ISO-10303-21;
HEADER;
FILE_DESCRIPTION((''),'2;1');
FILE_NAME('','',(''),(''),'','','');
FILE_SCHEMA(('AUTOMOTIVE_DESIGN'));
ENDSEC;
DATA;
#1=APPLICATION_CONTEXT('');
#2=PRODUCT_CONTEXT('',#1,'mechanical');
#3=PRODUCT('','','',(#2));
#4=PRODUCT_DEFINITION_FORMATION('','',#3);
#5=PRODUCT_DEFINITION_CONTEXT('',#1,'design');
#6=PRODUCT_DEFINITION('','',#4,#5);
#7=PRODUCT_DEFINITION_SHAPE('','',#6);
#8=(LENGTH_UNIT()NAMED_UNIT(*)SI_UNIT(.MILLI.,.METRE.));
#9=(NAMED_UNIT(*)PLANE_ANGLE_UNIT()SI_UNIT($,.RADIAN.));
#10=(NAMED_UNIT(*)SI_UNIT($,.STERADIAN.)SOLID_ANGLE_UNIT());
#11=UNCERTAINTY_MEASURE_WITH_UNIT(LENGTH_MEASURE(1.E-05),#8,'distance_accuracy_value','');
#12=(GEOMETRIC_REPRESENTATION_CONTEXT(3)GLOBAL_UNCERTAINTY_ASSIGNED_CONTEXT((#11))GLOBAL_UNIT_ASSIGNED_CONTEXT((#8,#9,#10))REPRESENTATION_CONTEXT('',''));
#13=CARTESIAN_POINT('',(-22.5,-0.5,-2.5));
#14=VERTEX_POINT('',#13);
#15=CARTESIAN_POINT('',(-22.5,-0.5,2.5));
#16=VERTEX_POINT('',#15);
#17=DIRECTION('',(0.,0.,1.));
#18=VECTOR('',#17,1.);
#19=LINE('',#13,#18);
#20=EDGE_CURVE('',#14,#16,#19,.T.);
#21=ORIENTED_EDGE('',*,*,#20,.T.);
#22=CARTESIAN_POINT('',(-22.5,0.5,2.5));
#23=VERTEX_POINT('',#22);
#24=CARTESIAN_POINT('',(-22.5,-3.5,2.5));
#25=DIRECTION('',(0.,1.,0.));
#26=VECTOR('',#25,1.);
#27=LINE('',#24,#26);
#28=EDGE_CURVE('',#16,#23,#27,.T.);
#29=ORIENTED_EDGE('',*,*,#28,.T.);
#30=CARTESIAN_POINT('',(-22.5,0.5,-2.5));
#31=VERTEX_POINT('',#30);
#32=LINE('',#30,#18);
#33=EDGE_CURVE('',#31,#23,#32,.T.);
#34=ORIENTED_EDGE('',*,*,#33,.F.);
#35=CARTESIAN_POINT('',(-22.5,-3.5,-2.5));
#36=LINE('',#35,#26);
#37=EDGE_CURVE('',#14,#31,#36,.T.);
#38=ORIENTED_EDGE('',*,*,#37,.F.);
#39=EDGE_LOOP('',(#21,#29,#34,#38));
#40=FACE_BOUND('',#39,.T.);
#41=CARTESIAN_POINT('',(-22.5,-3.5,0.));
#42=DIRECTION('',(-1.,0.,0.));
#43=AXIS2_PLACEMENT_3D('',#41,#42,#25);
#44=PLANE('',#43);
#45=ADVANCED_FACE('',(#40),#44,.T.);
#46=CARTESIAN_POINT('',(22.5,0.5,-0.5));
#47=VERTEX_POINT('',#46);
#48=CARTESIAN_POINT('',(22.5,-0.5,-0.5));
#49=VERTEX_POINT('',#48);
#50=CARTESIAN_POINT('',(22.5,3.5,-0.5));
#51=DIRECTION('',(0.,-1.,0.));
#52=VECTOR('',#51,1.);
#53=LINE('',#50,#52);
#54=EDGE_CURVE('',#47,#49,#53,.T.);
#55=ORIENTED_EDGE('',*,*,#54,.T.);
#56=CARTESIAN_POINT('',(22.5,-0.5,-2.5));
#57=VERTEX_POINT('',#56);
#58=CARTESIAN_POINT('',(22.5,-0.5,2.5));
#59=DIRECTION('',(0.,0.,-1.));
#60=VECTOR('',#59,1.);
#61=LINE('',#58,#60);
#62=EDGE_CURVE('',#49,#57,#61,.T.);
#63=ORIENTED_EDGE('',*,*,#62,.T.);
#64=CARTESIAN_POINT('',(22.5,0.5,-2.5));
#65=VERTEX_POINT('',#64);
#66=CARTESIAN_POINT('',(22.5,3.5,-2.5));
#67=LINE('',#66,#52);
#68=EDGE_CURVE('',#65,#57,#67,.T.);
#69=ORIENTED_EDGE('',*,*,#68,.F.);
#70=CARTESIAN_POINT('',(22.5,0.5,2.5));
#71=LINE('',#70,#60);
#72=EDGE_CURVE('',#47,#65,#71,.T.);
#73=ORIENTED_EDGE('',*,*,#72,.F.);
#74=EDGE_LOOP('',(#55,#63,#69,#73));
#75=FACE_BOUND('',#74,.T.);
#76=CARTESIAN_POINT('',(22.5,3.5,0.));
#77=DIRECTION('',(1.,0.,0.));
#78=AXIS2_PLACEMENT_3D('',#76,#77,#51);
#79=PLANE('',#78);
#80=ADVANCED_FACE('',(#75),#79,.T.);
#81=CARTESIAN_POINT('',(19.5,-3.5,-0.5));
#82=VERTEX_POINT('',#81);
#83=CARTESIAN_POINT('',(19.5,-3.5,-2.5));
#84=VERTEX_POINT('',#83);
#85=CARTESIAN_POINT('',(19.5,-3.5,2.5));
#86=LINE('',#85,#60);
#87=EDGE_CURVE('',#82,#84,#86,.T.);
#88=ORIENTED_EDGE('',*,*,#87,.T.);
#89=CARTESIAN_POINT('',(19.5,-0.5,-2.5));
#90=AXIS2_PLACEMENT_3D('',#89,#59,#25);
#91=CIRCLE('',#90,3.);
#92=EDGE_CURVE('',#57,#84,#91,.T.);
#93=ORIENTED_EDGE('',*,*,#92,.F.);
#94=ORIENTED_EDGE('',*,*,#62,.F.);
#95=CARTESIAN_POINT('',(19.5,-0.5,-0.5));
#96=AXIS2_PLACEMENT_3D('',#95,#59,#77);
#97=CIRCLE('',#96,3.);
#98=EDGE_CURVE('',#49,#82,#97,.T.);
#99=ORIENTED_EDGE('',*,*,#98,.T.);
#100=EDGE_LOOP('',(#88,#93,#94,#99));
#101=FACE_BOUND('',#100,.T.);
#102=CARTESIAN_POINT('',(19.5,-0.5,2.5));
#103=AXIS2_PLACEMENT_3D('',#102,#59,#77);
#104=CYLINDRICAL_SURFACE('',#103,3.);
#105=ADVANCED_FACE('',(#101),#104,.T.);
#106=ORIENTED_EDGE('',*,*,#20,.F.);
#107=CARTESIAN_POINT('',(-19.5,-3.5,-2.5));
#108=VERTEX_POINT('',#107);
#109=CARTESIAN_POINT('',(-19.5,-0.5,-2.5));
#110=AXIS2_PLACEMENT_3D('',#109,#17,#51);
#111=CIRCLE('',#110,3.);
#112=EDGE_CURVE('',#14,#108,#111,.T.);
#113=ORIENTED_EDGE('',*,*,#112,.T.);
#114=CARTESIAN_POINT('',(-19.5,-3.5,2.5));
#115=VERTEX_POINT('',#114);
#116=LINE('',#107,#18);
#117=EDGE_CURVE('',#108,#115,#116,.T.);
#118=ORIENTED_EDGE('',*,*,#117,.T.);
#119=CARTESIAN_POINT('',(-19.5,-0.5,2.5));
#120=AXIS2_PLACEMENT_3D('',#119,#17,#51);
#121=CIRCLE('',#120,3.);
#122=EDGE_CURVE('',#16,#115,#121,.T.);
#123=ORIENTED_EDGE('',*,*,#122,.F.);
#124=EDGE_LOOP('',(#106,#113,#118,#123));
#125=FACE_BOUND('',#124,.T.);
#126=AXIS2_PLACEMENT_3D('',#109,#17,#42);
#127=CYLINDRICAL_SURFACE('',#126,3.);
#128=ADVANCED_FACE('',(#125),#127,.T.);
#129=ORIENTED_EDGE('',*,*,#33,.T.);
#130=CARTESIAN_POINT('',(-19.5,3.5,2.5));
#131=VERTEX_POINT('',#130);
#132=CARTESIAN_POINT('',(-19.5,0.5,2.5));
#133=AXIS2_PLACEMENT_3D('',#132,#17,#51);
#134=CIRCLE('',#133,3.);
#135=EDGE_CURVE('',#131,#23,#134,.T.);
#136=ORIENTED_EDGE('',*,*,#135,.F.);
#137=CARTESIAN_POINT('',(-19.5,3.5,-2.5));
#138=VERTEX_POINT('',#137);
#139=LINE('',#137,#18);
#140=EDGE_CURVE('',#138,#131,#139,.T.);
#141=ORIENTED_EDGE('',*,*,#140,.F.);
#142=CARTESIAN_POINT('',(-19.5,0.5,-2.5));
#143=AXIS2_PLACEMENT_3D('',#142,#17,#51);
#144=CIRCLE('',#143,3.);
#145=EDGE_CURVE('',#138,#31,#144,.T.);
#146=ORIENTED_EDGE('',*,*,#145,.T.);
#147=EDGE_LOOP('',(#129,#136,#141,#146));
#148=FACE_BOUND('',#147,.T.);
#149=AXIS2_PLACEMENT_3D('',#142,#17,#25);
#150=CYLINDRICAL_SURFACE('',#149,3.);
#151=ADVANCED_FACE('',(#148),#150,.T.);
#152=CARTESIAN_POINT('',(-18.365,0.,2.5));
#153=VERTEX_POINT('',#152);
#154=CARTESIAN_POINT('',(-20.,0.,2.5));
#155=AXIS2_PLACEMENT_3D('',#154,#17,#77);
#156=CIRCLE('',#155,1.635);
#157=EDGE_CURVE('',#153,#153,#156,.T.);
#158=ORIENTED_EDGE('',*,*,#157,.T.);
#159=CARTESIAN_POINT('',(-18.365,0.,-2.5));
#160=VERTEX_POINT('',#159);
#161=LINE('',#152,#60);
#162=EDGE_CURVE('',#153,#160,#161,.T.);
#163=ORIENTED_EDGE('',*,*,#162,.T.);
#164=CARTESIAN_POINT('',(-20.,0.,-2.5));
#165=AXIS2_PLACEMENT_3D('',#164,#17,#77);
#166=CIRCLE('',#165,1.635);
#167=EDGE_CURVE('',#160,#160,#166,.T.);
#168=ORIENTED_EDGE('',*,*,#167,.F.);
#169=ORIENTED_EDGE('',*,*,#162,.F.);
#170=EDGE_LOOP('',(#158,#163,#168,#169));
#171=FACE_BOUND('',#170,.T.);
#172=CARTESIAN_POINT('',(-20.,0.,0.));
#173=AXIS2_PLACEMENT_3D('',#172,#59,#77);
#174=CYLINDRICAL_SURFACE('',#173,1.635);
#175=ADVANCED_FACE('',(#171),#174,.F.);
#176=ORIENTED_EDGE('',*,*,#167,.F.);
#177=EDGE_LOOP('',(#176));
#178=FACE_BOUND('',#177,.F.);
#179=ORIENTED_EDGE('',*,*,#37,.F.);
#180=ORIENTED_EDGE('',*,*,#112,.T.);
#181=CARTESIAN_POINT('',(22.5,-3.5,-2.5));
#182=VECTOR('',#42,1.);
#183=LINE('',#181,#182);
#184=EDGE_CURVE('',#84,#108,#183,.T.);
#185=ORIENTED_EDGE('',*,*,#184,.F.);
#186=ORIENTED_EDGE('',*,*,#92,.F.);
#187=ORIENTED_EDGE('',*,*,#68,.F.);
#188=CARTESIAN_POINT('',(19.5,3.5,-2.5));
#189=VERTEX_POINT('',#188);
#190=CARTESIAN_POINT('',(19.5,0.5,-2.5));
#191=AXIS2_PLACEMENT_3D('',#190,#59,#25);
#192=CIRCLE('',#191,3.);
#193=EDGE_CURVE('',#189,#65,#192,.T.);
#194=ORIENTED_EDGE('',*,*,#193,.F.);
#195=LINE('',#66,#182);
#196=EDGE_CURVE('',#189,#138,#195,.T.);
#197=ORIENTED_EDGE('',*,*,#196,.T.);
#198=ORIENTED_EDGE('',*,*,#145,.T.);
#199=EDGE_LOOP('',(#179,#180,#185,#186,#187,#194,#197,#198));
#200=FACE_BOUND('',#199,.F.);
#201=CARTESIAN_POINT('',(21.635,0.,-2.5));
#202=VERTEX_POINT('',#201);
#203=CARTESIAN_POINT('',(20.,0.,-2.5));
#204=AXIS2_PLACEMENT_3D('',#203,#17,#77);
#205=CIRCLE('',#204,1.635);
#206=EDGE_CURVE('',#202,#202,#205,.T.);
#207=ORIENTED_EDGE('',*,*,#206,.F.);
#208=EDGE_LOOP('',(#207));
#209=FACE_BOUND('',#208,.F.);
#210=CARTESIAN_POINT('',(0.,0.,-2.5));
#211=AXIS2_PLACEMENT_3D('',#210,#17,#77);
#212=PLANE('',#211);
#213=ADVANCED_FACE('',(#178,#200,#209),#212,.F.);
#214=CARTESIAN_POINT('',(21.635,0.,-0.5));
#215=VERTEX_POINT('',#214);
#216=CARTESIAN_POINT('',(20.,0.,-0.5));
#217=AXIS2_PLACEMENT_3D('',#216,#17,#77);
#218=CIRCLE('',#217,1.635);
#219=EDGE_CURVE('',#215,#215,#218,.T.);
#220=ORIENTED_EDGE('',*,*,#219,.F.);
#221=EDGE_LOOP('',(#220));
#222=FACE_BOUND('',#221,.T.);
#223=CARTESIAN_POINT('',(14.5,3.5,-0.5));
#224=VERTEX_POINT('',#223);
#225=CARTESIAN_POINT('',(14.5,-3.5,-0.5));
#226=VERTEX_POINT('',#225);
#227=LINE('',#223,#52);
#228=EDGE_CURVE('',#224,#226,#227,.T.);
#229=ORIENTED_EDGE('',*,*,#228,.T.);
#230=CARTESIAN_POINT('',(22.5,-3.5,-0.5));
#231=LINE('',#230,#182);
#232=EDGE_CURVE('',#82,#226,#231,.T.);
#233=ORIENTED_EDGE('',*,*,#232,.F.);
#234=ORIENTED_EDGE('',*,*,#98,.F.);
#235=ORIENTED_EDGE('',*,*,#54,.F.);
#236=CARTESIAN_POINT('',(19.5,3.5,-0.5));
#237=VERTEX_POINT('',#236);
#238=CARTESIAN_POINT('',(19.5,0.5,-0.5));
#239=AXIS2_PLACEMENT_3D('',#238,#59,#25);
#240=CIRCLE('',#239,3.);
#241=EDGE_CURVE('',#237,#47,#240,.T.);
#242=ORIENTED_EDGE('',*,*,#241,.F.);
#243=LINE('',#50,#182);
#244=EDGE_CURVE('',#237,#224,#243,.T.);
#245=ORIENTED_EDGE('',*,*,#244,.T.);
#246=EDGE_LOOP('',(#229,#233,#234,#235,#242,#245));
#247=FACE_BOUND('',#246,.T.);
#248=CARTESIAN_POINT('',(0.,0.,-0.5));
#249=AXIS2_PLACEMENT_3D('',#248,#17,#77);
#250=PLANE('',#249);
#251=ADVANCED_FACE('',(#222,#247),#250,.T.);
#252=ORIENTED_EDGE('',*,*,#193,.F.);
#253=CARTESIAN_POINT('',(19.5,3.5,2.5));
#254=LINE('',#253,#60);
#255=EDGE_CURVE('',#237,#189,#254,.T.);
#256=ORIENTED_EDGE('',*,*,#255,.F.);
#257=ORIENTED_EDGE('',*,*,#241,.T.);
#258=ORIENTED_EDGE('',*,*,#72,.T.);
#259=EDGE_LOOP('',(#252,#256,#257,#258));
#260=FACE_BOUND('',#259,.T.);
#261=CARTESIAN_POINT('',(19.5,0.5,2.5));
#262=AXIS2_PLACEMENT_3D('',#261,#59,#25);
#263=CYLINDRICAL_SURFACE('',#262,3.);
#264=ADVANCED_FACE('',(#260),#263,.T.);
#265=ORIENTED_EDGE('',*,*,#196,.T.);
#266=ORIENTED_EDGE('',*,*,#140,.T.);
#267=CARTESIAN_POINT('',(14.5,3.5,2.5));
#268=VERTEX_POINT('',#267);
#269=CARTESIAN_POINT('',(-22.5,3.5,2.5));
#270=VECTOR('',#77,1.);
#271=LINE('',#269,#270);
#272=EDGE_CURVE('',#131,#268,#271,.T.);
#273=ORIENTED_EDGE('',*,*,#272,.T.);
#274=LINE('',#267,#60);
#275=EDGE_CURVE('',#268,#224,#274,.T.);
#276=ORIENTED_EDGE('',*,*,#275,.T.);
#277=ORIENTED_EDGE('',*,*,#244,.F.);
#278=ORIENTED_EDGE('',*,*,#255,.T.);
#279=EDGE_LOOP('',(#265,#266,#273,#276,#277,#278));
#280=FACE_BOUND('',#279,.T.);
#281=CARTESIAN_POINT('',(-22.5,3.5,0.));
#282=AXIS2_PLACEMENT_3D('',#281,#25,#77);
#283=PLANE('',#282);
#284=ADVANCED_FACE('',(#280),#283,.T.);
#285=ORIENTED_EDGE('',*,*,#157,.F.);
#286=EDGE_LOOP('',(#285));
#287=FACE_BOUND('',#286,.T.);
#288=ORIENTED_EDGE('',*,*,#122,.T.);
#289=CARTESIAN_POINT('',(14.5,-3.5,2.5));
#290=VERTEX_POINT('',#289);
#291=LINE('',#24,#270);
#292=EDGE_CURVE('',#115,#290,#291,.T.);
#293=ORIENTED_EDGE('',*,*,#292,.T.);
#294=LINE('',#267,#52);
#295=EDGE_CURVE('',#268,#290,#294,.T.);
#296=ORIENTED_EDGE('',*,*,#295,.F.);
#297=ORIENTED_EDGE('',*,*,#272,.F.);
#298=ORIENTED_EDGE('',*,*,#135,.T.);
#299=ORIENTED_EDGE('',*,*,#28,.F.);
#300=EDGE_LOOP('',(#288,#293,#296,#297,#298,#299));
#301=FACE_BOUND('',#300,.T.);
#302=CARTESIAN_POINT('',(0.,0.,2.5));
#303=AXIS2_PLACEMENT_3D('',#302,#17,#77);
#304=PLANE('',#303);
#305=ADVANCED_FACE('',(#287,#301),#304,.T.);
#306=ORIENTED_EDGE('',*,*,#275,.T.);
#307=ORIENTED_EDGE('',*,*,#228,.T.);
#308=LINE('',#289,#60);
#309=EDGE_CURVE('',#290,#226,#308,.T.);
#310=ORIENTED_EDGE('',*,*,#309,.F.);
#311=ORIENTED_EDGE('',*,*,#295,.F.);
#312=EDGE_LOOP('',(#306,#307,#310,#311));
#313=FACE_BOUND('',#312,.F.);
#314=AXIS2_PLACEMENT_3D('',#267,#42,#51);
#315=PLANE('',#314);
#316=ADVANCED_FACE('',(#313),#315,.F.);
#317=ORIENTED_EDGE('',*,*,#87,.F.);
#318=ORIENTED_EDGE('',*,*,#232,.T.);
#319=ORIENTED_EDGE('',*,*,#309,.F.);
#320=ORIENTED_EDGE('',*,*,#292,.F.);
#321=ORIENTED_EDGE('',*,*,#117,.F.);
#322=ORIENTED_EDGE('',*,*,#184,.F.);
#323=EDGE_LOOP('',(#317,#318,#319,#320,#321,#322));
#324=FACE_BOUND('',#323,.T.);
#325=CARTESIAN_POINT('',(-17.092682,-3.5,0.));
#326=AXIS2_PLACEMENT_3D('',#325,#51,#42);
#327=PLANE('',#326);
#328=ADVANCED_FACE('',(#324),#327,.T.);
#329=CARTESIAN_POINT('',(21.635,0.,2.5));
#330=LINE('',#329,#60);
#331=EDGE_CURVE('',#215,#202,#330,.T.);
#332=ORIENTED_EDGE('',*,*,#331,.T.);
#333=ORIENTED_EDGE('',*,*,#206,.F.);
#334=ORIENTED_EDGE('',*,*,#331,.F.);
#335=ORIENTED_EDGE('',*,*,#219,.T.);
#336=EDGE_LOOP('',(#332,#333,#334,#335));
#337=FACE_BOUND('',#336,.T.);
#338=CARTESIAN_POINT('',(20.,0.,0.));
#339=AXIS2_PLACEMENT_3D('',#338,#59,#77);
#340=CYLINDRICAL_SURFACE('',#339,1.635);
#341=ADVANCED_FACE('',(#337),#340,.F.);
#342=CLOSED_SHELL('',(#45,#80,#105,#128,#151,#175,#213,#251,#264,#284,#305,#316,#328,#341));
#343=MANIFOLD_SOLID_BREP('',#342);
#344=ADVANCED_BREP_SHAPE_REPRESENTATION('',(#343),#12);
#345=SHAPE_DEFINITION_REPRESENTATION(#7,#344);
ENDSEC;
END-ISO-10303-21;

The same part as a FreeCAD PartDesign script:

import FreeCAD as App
import Part
import Sketcher


def edges_at(feature, points):
    """Names of the edges that pass closest to the given points."""
    edges = feature.Shape.Edges
    near = lambda p: min(range(len(edges)), key=lambda i: edges[i].distToShape(Part.Vertex(*p))[0])
    return sorted({f"Edge{near(p) + 1}" for p in points})

doc = App.newDocument("Part")
body = doc.addObject("PartDesign::Body", "Body")

# Sketch on XY plane
sketch1 = doc.addObject("Sketcher::SketchObject", "Sketch")
body.addObject(sketch1)
sketch1.AttachmentSupport = (doc.XY_Plane, [""])
sketch1.MapMode = "FlatFace"
sketch1.addGeometry([
    Part.LineSegment(App.Vector(-22.5, 3.5, 0), App.Vector(-22.5, -3.5, 0)),  # 0
    Part.LineSegment(App.Vector(-22.5, -3.5, 0), App.Vector(22.5, -3.5, 0)),  # 1
    Part.LineSegment(App.Vector(22.5, -3.5, 0), App.Vector(22.5, 3.5, 0)),  # 2
    Part.LineSegment(App.Vector(22.5, 3.5, 0), App.Vector(-22.5, 3.5, 0)),  # 3
    Part.Circle(App.Vector(-20, 0, 0), App.Vector(0, 0, 1), 1.6),  # 4
    Part.Circle(App.Vector(20, 0, 0), App.Vector(0, 0, 1), 1.6),  # 5
], False)
sketch1.addConstraint([
    Sketcher.Constraint("Coincident", 0, 2, 1, 1),
    Sketcher.Constraint("Coincident", 1, 2, 2, 1),
    Sketcher.Constraint("Coincident", 2, 2, 3, 1),
    Sketcher.Constraint("Coincident", 3, 2, 0, 1),
    Sketcher.Constraint("Vertical", 0),
    Sketcher.Constraint("Horizontal", 1),
    Sketcher.Constraint("Vertical", 2),
    Sketcher.Constraint("Horizontal", 3),
    Sketcher.Constraint("Equal", 4, 5),
    Sketcher.Constraint("Symmetric", 4, 3, 5, 3, -1, 1),
    Sketcher.Constraint("Symmetric", 0, 2, 2, 2, -1, 1),
    Sketcher.Constraint("PointOnObject", 4, 3, -1),
    Sketcher.Constraint("Diameter", 4, 3.27),
    Sketcher.Constraint("DistanceX", 1, 1, 1, 2, 45.0),
    Sketcher.Constraint("DistanceY", 0, 2, 0, 1, 7.0),
    Sketcher.Constraint("DistanceX", 4, 3, -1, 1, 20.0),
])
pad1 = doc.addObject("PartDesign::Pad", "Pad")
body.addObject(pad1)
pad1.Profile = sketch1
pad1.Length = 5
pad1.Midplane = True
doc.recompute()

fillet = doc.addObject("PartDesign::Fillet", "Fillet")
body.addObject(fillet)
fillet.Base = (pad1, edges_at(pad1, [
    (-22.5, 3.5, 0),
    (-22.5, -3.5, 0),
    (22.5, -3.5, 0),
    (22.5, 3.5, 0),
]))
fillet.Radius = 3

# Sketch on XY plane
sketch2 = doc.addObject("Sketcher::SketchObject", "Sketch001")
body.addObject(sketch2)
sketch2.AttachmentSupport = (doc.XY_Plane, [""])
sketch2.MapMode = "FlatFace"
sketch2.AttachmentOffset = App.Placement(App.Vector(0, 0, 2.5), App.Rotation())
sketch2.addGeometry([
    Part.LineSegment(App.Vector(14.5, 3.5, 0), App.Vector(14.5, -3.5, 0)),  # 0
    Part.LineSegment(App.Vector(14.5, -3.5, 0), App.Vector(22.5, -3.5, 0)),  # 1
    Part.LineSegment(App.Vector(22.5, -3.5, 0), App.Vector(22.5, 3.5, 0)),  # 2
    Part.LineSegment(App.Vector(22.5, 3.5, 0), App.Vector(14.5, 3.5, 0)),  # 3
    Part.Circle(App.Vector(20, 0, 0), App.Vector(0, 0, 1), 1.6),  # 4
], False)
sketch2.addConstraint([
    Sketcher.Constraint("Coincident", 0, 2, 1, 1),
    Sketcher.Constraint("Coincident", 1, 2, 2, 1),
    Sketcher.Constraint("Coincident", 2, 2, 3, 1),
    Sketcher.Constraint("Coincident", 3, 2, 0, 1),
    Sketcher.Constraint("Vertical", 0),
    Sketcher.Constraint("Horizontal", 1),
    Sketcher.Constraint("Vertical", 2),
    Sketcher.Constraint("Horizontal", 3),
    Sketcher.Constraint("PointOnObject", 4, 3, -1),
    Sketcher.Constraint("Diameter", 4, 3.27),
    Sketcher.Constraint("DistanceX", 1, 1, 1, 2, 8.0),
    Sketcher.Constraint("DistanceY", 0, 2, 0, 1, 7.0),
    Sketcher.Constraint("DistanceX", -1, 1, 4, 3, 20.0),
    Sketcher.Constraint("DistanceX", -1, 1, 0, 2, 14.5),
    Sketcher.Constraint("DistanceY", 0, 2, -1, 1, 3.5),
])
pocket1 = doc.addObject("PartDesign::Pocket", "Pocket")
body.addObject(pocket1)
pocket1.Profile = sketch2
pocket1.Length = 3

doc.recompute()
